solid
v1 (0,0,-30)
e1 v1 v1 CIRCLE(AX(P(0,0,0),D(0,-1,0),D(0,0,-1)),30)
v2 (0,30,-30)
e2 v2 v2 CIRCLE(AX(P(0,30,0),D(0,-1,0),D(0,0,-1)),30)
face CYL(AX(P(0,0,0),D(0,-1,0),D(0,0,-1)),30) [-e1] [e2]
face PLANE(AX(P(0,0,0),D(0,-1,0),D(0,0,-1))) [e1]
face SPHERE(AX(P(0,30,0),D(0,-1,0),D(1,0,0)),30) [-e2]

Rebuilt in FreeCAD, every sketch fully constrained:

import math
import FreeCAD as App
import Part
import Sketcher
Q = App.Units.Quantity

doc = App.newDocument("Part")
body = doc.addObject("PartDesign::Body", "Body")

# Sketch on XY plane
sketch1 = body.newObject("Sketcher::SketchObject", "Sketch")
sketch1.AttachmentSupport = (doc.getObject("XY_Plane"), [""])
sketch1.MapMode = "FlatFace"
sketch1.addGeometry([
    Part.LineSegment(App.Vector(0, 0, 0), App.Vector(30, 0, 0)),
    Part.LineSegment(App.Vector(30, 0, 0), App.Vector(30, 30, 0)),
    Part.ArcOfCircle(Part.Circle(App.Vector(0, 30, 0), App.Vector(0, 0, 1), 30), math.radians(0), math.radians(90)),
    Part.LineSegment(App.Vector(0, 60, 0), App.Vector(0, 0, 0)),
], False)
sketch1.addConstraint([
    Sketcher.Constraint("Coincident", 0, 2, 1, 1),
    Sketcher.Constraint("Tangent", 1, 2, 2, 1),
    Sketcher.Constraint("Coincident", 2, 2, 3, 1),
    Sketcher.Constraint("Coincident", 3, 2, 0, 1),
    Sketcher.Constraint("Horizontal", 0),
    Sketcher.Constraint("Vertical", 1),
    Sketcher.Constraint("Vertical", 3),
    Sketcher.Constraint("Coincident", 3, 2, -1, 1),
    Sketcher.Constraint("PointOnObject", 2, 3, -2),
    Sketcher.Constraint("Equal", 0, 1),
    Sketcher.Constraint("Radius", 2, Q("30 mm")),
])
revolution = body.newObject("PartDesign::Revolution", "Revolution")
revolution.Profile = sketch1
revolution.ReferenceAxis = (sketch1, ["V_Axis"])
revolution.Angle = 360

doc.recompute()
